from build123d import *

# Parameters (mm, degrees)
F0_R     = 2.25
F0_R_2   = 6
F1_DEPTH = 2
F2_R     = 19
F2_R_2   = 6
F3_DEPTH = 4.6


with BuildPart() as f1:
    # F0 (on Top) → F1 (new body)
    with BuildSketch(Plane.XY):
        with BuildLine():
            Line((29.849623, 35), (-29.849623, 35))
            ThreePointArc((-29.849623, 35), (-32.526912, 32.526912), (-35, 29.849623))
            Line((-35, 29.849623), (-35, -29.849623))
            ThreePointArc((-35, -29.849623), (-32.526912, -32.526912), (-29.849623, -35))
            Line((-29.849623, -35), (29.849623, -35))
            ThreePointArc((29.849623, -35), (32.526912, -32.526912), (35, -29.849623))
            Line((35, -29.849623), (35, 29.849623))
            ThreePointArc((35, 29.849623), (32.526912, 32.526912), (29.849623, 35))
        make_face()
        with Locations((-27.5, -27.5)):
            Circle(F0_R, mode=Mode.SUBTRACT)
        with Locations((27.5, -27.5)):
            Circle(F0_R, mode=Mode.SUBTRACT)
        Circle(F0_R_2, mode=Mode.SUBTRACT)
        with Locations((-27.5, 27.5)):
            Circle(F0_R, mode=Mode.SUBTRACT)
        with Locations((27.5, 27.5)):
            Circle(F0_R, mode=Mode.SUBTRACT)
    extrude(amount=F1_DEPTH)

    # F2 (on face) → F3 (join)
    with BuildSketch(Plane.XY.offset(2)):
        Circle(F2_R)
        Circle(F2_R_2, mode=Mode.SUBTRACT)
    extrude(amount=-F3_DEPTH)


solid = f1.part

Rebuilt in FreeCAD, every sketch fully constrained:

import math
import FreeCAD as App
import Part
import Sketcher
from FreeCAD import Vector
Q = App.Units.Quantity

doc = App.newDocument("Part")
body = doc.addObject("PartDesign::Body", "Body")

sketch1 = body.newObject("Sketcher::SketchObject", "Sketch")
sketch1.AttachmentSupport = (doc.getObject("XY_Plane"), [""])
sketch1.MapMode = "FlatFace"
sketch1.addGeometry([
    Part.LineSegment(Vector(29.849623, 35, 0), Vector(-29.849623, 35, 0)),
    Part.ArcOfCircle(Part.Circle(Vector(-0.000037, 0.000037, 0), Vector(0, 0, 1), 45.999947), math.radians(130.459078), math.radians(139.540922)),
    Part.LineSegment(Vector(-35, 29.849623, 0), Vector(-35, -29.849623, 0)),
    Part.ArcOfCircle(Part.Circle(Vector(-0.000037, -0.000037, 0), Vector(0, 0, 1), 45.999947), math.radians(-139.540922), math.radians(-130.459078)),
    Part.LineSegment(Vector(-29.849623, -35, 0), Vector(29.849623, -35, 0)),
    Part.ArcOfCircle(Part.Circle(Vector(0.000037, -0.000037, 0), Vector(0, 0, 1), 45.999947), math.radians(-49.540922), math.radians(-40.459078)),
    Part.LineSegment(Vector(35, -29.849623, 0), Vector(35, 29.849623, 0)),
    Part.ArcOfCircle(Part.Circle(Vector(0.000037, 0.000037, 0), Vector(0, 0, 1), 45.999947), math.radians(40.459078), math.radians(49.540922)),
    Part.Circle(Vector(-27.5, -27.5, 0), Vector(0, 0, 1), 2.25),
    Part.Circle(Vector(27.5, -27.5, 0), Vector(0, 0, 1), 2.25),
    Part.Circle(Vector(-27.5, 27.5, 0), Vector(0, 0, 1), 2.25),
    Part.Circle(Vector(0, 0, 0), Vector(0, 0, 1), 6),
    Part.Circle(Vector(27.5, 27.5, 0), Vector(0, 0, 1), 2.25),
], False)
sketch1.addConstraint([
    Sketcher.Constraint("Coincident", 0, 2, 1, 1),
    Sketcher.Constraint("Coincident", 1, 2, 2, 1),
    Sketcher.Constraint("Coincident", 2, 2, 3, 1),
    Sketcher.Constraint("Coincident", 3, 2, 4, 1),
    Sketcher.Constraint("Coincident", 4, 2, 5, 1),
    Sketcher.Constraint("Coincident", 5, 2, 6, 1),
    Sketcher.Constraint("Coincident", 6, 2, 7, 1),
    Sketcher.Constraint("Coincident", 7, 2, 0, 1),
    Sketcher.Constraint("Horizontal", 0),
    Sketcher.Constraint("Vertical", 2),
    Sketcher.Constraint("Horizontal", 4),
    Sketcher.Constraint("Vertical", 6),
    Sketcher.Constraint("Coincident", 11, 3, -1, 1),
    Sketcher.Constraint("Equal", 1, 3),
    Sketcher.Constraint("Equal", 3, 5),
    Sketcher.Constraint("Equal", 5, 7),
    Sketcher.Constraint("Equal", 8, 9),
    Sketcher.Constraint("Equal", 9, 10),
    Sketcher.Constraint("Equal", 10, 12),
    Sketcher.Constraint("Symmetric", 1, 3, 5, 3, -1, 1),
    Sketcher.Constraint("Symmetric", 3, 3, 7, 3, -1, 1),
    Sketcher.Constraint("Symmetric", 9, 3, 10, 3, -1, 1),
    Sketcher.Constraint("Symmetric", 8, 3, 12, 3, -1, 1),
    Sketcher.Constraint("Symmetric", 3, 3, 5, 3, -2),
    Sketcher.Constraint("Symmetric", 8, 3, 9, 3, -2),
    Sketcher.Constraint("Horizontal", 2, 2, 5, 2),
    Sketcher.Constraint("Vertical", 0, 2, 3, 2),
    Sketcher.Constraint("Equal", 4, 2),
    Sketcher.Constraint("Diameter", 11, Q("12 mm")),
    Sketcher.Constraint("Diameter", 8, Q("4.5 mm")),
    Sketcher.Constraint("DistanceY", -1, 1, 0, 2, Q("35 mm")),
    Sketcher.Constraint("DistanceX", 1, 2, -1, 1, Q("35 mm")),
    Sketcher.Constraint("DistanceX", 8, 3, 9, 3, Q("55 mm")),
    Sketcher.Constraint("DistanceY", 8, 3, 10, 3, Q("55 mm")),
    Sketcher.Constraint("Radius", 1, Q("45.999947 mm")),
    Sketcher.Constraint("DistanceX", 0, 2, 0, 1, Q("59.699246 mm")),
])
pad1 = body.newObject("PartDesign::Pad", "Pad")
pad1.Profile = sketch1
pad1.Length = 2

sketch2 = body.newObject("Sketcher::SketchObject", "Sketch001")
sketch2.AttachmentSupport = (doc.getObject("XY_Plane"), [""])
sketch2.MapMode = "FlatFace"
sketch2.AttachmentOffset = App.Placement(Vector(0, 0, 2), App.Rotation())
sketch2.addGeometry([
    Part.Circle(Vector(0, 0, 0), Vector(0, 0, 1), 19),
    Part.Circle(Vector(0, 0, 0), Vector(0, 0, 1), 6),
], False)
sketch2.addConstraint([
    Sketcher.Constraint("Coincident", 0, 3, -1, 1),
    Sketcher.Constraint("Coincident", 1, 3, -1, 1),
    Sketcher.Constraint("Diameter", 0, Q("38 mm")),
    Sketcher.Constraint("Diameter", 1, Q("12 mm")),
])
pad2 = body.newObject("PartDesign::Pad", "Pad001")
pad2.Profile = sketch2
pad2.Length = 4.6
pad2.Reversed = True

doc.recompute()
